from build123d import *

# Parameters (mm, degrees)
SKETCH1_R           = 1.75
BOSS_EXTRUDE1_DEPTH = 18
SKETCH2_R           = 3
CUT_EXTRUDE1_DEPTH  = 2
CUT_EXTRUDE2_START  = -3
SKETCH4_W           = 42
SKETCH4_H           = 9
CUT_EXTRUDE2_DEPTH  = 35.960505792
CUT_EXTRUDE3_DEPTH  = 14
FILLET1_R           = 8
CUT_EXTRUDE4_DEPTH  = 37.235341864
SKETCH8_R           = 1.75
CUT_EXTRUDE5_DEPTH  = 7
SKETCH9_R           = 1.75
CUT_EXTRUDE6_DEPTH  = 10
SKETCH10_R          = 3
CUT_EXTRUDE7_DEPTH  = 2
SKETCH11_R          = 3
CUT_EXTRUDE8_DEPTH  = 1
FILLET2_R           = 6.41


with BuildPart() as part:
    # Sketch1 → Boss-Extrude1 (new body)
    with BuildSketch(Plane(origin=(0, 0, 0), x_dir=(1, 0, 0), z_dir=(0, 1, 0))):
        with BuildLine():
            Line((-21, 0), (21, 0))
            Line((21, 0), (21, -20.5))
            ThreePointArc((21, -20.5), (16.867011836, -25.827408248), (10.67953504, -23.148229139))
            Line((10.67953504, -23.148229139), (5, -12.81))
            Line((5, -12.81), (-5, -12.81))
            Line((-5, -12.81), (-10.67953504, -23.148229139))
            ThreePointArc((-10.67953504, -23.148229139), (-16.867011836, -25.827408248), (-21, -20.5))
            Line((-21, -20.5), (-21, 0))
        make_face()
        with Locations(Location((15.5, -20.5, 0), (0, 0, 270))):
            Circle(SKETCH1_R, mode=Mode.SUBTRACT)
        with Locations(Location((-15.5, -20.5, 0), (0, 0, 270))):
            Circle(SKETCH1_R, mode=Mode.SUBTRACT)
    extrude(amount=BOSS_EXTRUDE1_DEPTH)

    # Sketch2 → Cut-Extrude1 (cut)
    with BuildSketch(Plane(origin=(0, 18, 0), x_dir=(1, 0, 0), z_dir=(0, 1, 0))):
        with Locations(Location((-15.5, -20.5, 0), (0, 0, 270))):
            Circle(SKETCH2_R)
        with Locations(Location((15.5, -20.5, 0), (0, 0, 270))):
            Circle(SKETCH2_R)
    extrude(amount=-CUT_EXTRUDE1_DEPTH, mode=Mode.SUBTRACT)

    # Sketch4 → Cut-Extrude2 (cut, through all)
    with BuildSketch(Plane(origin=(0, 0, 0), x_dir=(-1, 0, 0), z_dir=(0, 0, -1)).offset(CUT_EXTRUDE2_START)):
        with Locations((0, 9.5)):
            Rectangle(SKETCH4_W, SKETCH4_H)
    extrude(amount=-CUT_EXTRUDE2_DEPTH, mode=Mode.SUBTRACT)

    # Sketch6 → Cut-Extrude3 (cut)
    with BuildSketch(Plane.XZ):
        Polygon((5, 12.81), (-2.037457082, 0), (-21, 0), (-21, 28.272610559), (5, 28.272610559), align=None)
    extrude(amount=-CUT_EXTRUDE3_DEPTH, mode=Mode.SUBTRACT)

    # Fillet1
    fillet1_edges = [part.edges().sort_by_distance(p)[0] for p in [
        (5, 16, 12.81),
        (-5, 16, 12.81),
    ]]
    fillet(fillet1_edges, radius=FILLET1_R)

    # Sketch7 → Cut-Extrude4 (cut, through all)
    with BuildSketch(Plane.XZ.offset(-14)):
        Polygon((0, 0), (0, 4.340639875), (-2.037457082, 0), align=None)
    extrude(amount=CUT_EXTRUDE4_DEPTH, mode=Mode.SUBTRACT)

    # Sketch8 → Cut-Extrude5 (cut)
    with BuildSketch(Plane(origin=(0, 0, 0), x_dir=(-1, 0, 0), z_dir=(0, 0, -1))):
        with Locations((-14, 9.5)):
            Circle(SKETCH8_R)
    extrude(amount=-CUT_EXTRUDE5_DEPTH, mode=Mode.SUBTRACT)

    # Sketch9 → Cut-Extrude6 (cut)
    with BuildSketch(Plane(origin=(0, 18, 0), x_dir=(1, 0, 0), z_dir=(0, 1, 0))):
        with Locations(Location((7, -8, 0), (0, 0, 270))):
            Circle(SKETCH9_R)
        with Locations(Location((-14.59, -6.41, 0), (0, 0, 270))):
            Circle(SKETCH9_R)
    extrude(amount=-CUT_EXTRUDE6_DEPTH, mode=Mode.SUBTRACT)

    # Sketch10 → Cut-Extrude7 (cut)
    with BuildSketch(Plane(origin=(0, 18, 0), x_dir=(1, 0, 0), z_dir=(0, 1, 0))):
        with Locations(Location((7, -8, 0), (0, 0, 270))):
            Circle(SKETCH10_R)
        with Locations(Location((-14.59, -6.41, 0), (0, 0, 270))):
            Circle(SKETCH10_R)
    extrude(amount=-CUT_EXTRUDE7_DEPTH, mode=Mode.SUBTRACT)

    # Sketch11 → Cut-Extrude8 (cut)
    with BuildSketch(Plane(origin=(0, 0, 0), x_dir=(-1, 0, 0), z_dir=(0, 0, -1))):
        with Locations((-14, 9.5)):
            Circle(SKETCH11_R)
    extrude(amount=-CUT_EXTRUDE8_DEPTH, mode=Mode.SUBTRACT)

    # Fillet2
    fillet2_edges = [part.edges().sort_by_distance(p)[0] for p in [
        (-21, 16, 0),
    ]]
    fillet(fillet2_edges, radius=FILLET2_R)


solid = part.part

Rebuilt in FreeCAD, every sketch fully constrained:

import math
import FreeCAD as App
import Part
import Sketcher
Q = App.Units.Quantity


def edges_at(feature, points):
    """Names of the edges that pass closest to the given points."""
    edges = feature.Shape.Edges
    near = lambda p: min(range(len(edges)), key=lambda i: edges[i].distToShape(Part.Vertex(*p))[0])
    return sorted({f"Edge{near(p) + 1}" for p in points})


def add_polygon(sketch, points):
    """Adds a closed chain of lines whose ends are joined by coincident constraints."""
    first, n = sketch.GeometryCount, len(points)
    for a, b in zip(points, points[1:] + points[:1]):
        sketch.addGeometry(Part.LineSegment(App.Vector(*a, 0), App.Vector(*b, 0)), False)
    for i in range(n):
        sketch.addConstraint(Sketcher.Constraint("Coincident", first + i, 2, first + (i + 1) % n, 1))

doc = App.newDocument("Part")
params = doc.addObject("Spreadsheet::Sheet", "Params")
for row, (alias, value) in enumerate([
    ("sketch1_diameter", "3.5 mm"),
    ("sketch1_radius", "5.5 mm"),
    ("sketch1_width", "42 mm"),
    ("sketch1_width2", "10 mm"),
    ("sketch1_height", "20.5 mm"),
    ("pad1_length", "18 mm"),
    ("sketch2_diameter", "6 mm"),
    ("pocket1_length", "2 mm"),
    ("sketch3_width", "42 mm"),
    ("sketch3_height", "9 mm"),
    ("sketch4_width", "26 mm"),
    ("pocket3_length", "14 mm"),
    ("fillet_radius", "8 mm"),
    ("sketch6_diameter", "3.5 mm"),
    ("pocket5_length", "7 mm"),
    ("sketch7_diameter", "3.5 mm"),
    ("pocket6_length", "10 mm"),
    ("sketch8_diameter", "6 mm"),
    ("pocket7_length", "2 mm"),
    ("sketch9_diameter", "6 mm"),
    ("pocket8_length", "1 mm"),
    ("fillet2_radius", "6.41 mm"),
], start=1):
    params.set(f"A{row}", alias)
    params.set(f"B{row}", "=" + value)
    params.setAlias(f"B{row}", alias)

body = doc.addObject("PartDesign::Body", "Body")

sketch1 = doc.addObject("Sketcher::SketchObject", "Sketch")
body.addObject(sketch1)
sketch1.AttachmentSupport = (doc.XZ_Plane, [""])
sketch1.MapMode = "FlatFace"
sketch1.addGeometry(Part.LineSegment(App.Vector(21, 0, 0), App.Vector(-21, 0, 0)), False)
sketch1.addGeometry(Part.LineSegment(App.Vector(-21, 0, 0), App.Vector(-21, 20.5, 0)), False)
sketch1.addGeometry(Part.ArcOfCircle(Part.Circle(App.Vector(-15.5, 20.5, 0), App.Vector(0, 0, 1), 5.5), math.radians(29), math.radians(180)), False)
sketch1.addGeometry(Part.LineSegment(App.Vector(-10.7, 23.1, 0), App.Vector(-5, 12.8, 0)), False)
sketch1.addGeometry(Part.LineSegment(App.Vector(-5, 12.8, 0), App.Vector(5, 12.8, 0)), False)
sketch1.addGeometry(Part.LineSegment(App.Vector(5, 12.8, 0), App.Vector(10.7, 23.1, 0)), False)
sketch1.addGeometry(Part.ArcOfCircle(Part.Circle(App.Vector(15.5, 20.5, 0), App.Vector(0, 0, 1), 5.5), math.radians(0), math.radians(151)), False)
sketch1.addGeometry(Part.LineSegment(App.Vector(21, 20.5, 0), App.Vector(21, 0, 0)), False)
sketch1.addGeometry(Part.Circle(App.Vector(15.5, 20.5, 0), App.Vector(0, 0, 1), 1.8), False)
sketch1.addGeometry(Part.Circle(App.Vector(-15.5, 20.5, 0), App.Vector(0, 0, 1), 1.8), False)
sketch1.addConstraint(Sketcher.Constraint("Coincident", 0, 2, 1, 1))
sketch1.addConstraint(Sketcher.Constraint("Tangent", 1, 2, 2, 2))
sketch1.addConstraint(Sketcher.Constraint("Tangent", 2, 1, 3, 1))
sketch1.addConstraint(Sketcher.Constraint("Coincident", 3, 2, 4, 1))
sketch1.addConstraint(Sketcher.Constraint("Coincident", 4, 2, 5, 1))
sketch1.addConstraint(Sketcher.Constraint("Tangent", 5, 2, 6, 2))
sketch1.addConstraint(Sketcher.Constraint("Tangent", 6, 1, 7, 1))
sketch1.addConstraint(Sketcher.Constraint("Coincident", 7, 2, 0, 1))
sketch1.addConstraint(Sketcher.Constraint("Horizontal", 0))
sketch1.addConstraint(Sketcher.Constraint("Vertical", 1))
sketch1.addConstraint(Sketcher.Constraint("Horizontal", 4))
sketch1.addConstraint(Sketcher.Constraint("Vertical", 7))
sketch1.addConstraint(Sketcher.Constraint("Coincident", 8, 3, 6, 3))
sketch1.addConstraint(Sketcher.Constraint("Coincident", 9, 3, 2, 3))
sketch1.addConstraint(Sketcher.Constraint("Equal", 2, 6))
sketch1.addConstraint(Sketcher.Constraint("Equal", 8, 9))
sketch1.addConstraint(Sketcher.Constraint("Symmetric", 0, 2, 7, 2, -1, 1))
sketch1.addConstraint(Sketcher.Constraint("Symmetric", 2, 1, 5, 2, -2))
sketch1.addConstraint(Sketcher.Constraint("Diameter", 8, Q("3.5 mm")))
sketch1.addConstraint(Sketcher.Constraint("Radius", 2, Q("5.5 mm")))
sketch1.addConstraint(Sketcher.Constraint("DistanceX", 0, 2, 0, 1, Q("42 mm")))
sketch1.addConstraint(Sketcher.Constraint("DistanceX", 4, 1, 4, 2, Q("10 mm")))
sketch1.addConstraint(Sketcher.Constraint("DistanceY", 1, 1, 1, 2, Q("20.5 mm")))
sketch1.addConstraint(Sketcher.Constraint("DistanceY", -1, 1, 3, 2, Q("12.81 mm")))
sketch1.setExpression("Constraints[18]", "Params.sketch1_diameter")
sketch1.setExpression("Constraints[19]", "Params.sketch1_radius")
sketch1.setExpression("Constraints[20]", "Params.sketch1_width")
sketch1.setExpression("Constraints[21]", "Params.sketch1_width2")
sketch1.setExpression("Constraints[22]", "Params.sketch1_height")
pad1 = doc.addObject("PartDesign::Pad", "Pad")
body.addObject(pad1)
pad1.Profile = sketch1
pad1.setExpression("Length", "Params.pad1_length")
pad1.Reversed = True

sketch2 = doc.addObject("Sketcher::SketchObject", "Sketch001")
body.addObject(sketch2)
sketch2.AttachmentSupport = (doc.XZ_Plane, [""])
sketch2.MapMode = "FlatFace"
sketch2.AttachmentOffset = App.Placement(App.Vector(0, 0, -18), App.Rotation())
sketch2.addGeometry(Part.Circle(App.Vector(-15.5, 20.5, 0), App.Vector(0, 0, 1), 3), False)
sketch2.addGeometry(Part.Circle(App.Vector(15.5, 20.5, 0), App.Vector(0, 0, 1), 3), False)
sketch2.addConstraint(Sketcher.Constraint("Equal", 0, 1))
sketch2.addConstraint(Sketcher.Constraint("Symmetric", 0, 3, 1, 3, -2))
sketch2.addConstraint(Sketcher.Constraint("Diameter", 0, Q("6 mm")))
sketch2.addConstraint(Sketcher.Constraint("DistanceX", 0, 3, 1, 3, Q("31 mm")))
sketch2.addConstraint(Sketcher.Constraint("DistanceY", -1, 1, 0, 3, Q("20.5 mm")))
sketch2.setExpression("Constraints[2]", "Params.sketch2_diameter")
pocket1 = doc.addObject("PartDesign::Pocket", "Pocket")
body.addObject(pocket1)
pocket1.Profile = sketch2
pocket1.setExpression("Length", "Params.pocket1_length")
pocket1.Reversed = True

sketch3 = doc.addObject("Sketcher::SketchObject", "Sketch002")
body.addObject(sketch3)
sketch3.AttachmentSupport = (doc.XY_Plane, [""])
sketch3.MapMode = "FlatFace"
sketch3.AttachmentOffset = App.Placement(App.Vector(0, 0, 3), App.Rotation())
add_polygon(sketch3, [(21, 14), (21, 5), (-21, 5), (-21, 14)])
sketch3.addConstraint(Sketcher.Constraint("Vertical", 0))
sketch3.addConstraint(Sketcher.Constraint("Horizontal", 1))
sketch3.addConstraint(Sketcher.Constraint("Vertical", 2))
sketch3.addConstraint(Sketcher.Constraint("Horizontal", 3))
sketch3.addConstraint(Sketcher.Constraint("DistanceX", 1, 2, 1, 1, Q("42 mm")))
sketch3.addConstraint(Sketcher.Constraint("DistanceY", 0, 2, 0, 1, Q("9 mm")))
sketch3.addConstraint(Sketcher.Constraint("DistanceX", -1, 1, 0, 2, Q("21 mm")))
sketch3.addConstraint(Sketcher.Constraint("DistanceY", -1, 1, 0, 2, Q("5 mm")))
sketch3.setExpression("Constraints[8]", "Params.sketch3_width")
sketch3.setExpression("Constraints[9]", "Params.sketch3_height")
pocket2 = doc.addObject("PartDesign::Pocket", "Pocket001")
body.addObject(pocket2)
pocket2.Profile = sketch3
pocket2.Type = "ThroughAll"
pocket2.Reversed = True

sketch4 = doc.addObject("Sketcher::SketchObject", "Sketch003")
body.addObject(sketch4)
sketch4.AttachmentSupport = (doc.XZ_Plane, [""])
sketch4.MapMode = "FlatFace"
add_polygon(sketch4, [(-2, 0), (5, 13), (5, 28), (-21, 28), (-21, 0)])
sketch4.addConstraint(Sketcher.Constraint("Vertical", 1))
sketch4.addConstraint(Sketcher.Constraint("Horizontal", 2))
sketch4.addConstraint(Sketcher.Constraint("Vertical", 3))
sketch4.addConstraint(Sketcher.Constraint("Horizontal", 4))
sketch4.addConstraint(Sketcher.Constraint("PointOnObject", 3, 2, -1))
sketch4.addConstraint(Sketcher.Constraint("DistanceX", 2, 2, 2, 1, Q("26 mm")))
sketch4.addConstraint(Sketcher.Constraint("DistanceX", -1, 1, 0, 2, Q("5 mm")))
sketch4.addConstraint(Sketcher.Constraint("DistanceY", -1, 1, 0, 2, Q("12.81 mm")))
sketch4.addConstraint(Sketcher.Constraint("DistanceY", 1, 1, 1, 2, Q("15.462611 mm")))
sketch4.addConstraint(Sketcher.Constraint("Distance", 0, Q("14.61581 mm")))
sketch4.setExpression("Constraints[10]", "Params.sketch4_width")
pocket3 = doc.addObject("PartDesign::Pocket", "Pocket002")
body.addObject(pocket3)
pocket3.Profile = sketch4
pocket3.setExpression("Length", "Params.pocket3_length")
doc.recompute()

fillet = doc.addObject("PartDesign::Fillet", "Fillet")
body.addObject(fillet)
fillet.Base = (pocket3, edges_at(pocket3, [(5, 16, 12.81), (-5, 16, 12.81)]))
fillet.setExpression("Radius", "Params.fillet_radius")

sketch5 = doc.addObject("Sketcher::SketchObject", "Sketch004")
body.addObject(sketch5)
sketch5.AttachmentSupport = (doc.XZ_Plane, [""])
sketch5.MapMode = "FlatFace"
sketch5.AttachmentOffset = App.Placement(App.Vector(0, 0, -14), App.Rotation())
add_polygon(sketch5, [(0, 0), (0, 4.3), (-2, 0)])
sketch5.addConstraint(Sketcher.Constraint("Vertical", 0))
sketch5.addConstraint(Sketcher.Constraint("Horizontal", 2))
sketch5.addConstraint(Sketcher.Constraint("Coincident", 2, 2, -1, 1))
sketch5.addConstraint(Sketcher.Constraint("DistanceY", 0, 1, 0, 2, Q("4.34064 mm")))
sketch5.addConstraint(Sketcher.Constraint("DistanceX", 2, 1, 2, 2, Q("2.037457 mm")))
pocket4 = doc.addObject("PartDesign::Pocket", "Pocket003")
body.addObject(pocket4)
pocket4.Profile = sketch5
pocket4.Type = "ThroughAll"
pocket4.Reversed = True

sketch6 = doc.addObject("Sketcher::SketchObject", "Sketch005")
body.addObject(sketch6)
sketch6.AttachmentSupport = (doc.XY_Plane, [""])
sketch6.MapMode = "FlatFace"
sketch6.addGeometry(Part.Circle(App.Vector(14, 9.5, 0), App.Vector(0, 0, 1), 1.8), False)
sketch6.addConstraint(Sketcher.Constraint("Diameter", 0, Q("3.5 mm")))
sketch6.addConstraint(Sketcher.Constraint("DistanceX", -1, 1, 0, 3, Q("14 mm")))
sketch6.addConstraint(Sketcher.Constraint("DistanceY", -1, 1, 0, 3, Q("9.5 mm")))
sketch6.setExpression("Constraints[0]", "Params.sketch6_diameter")
pocket5 = doc.addObject("PartDesign::Pocket", "Pocket004")
body.addObject(pocket5)
pocket5.Profile = sketch6
pocket5.setExpression("Length", "Params.pocket5_length")
pocket5.Reversed = True

sketch7 = doc.addObject("Sketcher::SketchObject", "Sketch006")
body.addObject(sketch7)
sketch7.AttachmentSupport = (doc.XZ_Plane, [""])
sketch7.MapMode = "FlatFace"
sketch7.AttachmentOffset = App.Placement(App.Vector(0, 0, -18), App.Rotation())
sketch7.addGeometry(Part.Circle(App.Vector(7, 8, 0), App.Vector(0, 0, 1), 1.8), False)
sketch7.addGeometry(Part.Circle(App.Vector(-14.6, 6.4, 0), App.Vector(0, 0, 1), 1.8), False)
sketch7.addConstraint(Sketcher.Constraint("Equal", 0, 1))
sketch7.addConstraint(Sketcher.Constraint("Diameter", 0, Q("3.5 mm")))
sketch7.addConstraint(Sketcher.Constraint("DistanceX", -1, 1, 0, 3, Q("7 mm")))
sketch7.addConstraint(Sketcher.Constraint("DistanceY", -1, 1, 0, 3, Q("8 mm")))
sketch7.addConstraint(Sketcher.Constraint("DistanceX", 1, 3, -1, 1, Q("14.59 mm")))
sketch7.addConstraint(Sketcher.Constraint("DistanceY", -1, 1, 1, 3, Q("6.41 mm")))
sketch7.setExpression("Constraints[1]", "Params.sketch7_diameter")
pocket6 = doc.addObject("PartDesign::Pocket", "Pocket005")
body.addObject(pocket6)
pocket6.Profile = sketch7
pocket6.setExpression("Length", "Params.pocket6_length")
pocket6.Reversed = True

sketch8 = doc.addObject("Sketcher::SketchObject", "Sketch007")
body.addObject(sketch8)
sketch8.AttachmentSupport = (doc.XZ_Plane, [""])
sketch8.MapMode = "FlatFace"
sketch8.AttachmentOffset = App.Placement(App.Vector(0, 0, -18), App.Rotation())
sketch8.addGeometry(Part.Circle(App.Vector(7, 8, 0), App.Vector(0, 0, 1), 3), False)
sketch8.addGeometry(Part.Circle(App.Vector(-14.6, 6.4, 0), App.Vector(0, 0, 1), 3), False)
sketch8.addConstraint(Sketcher.Constraint("Equal", 0, 1))
sketch8.addConstraint(Sketcher.Constraint("Diameter", 0, Q("6 mm")))
sketch8.addConstraint(Sketcher.Constraint("DistanceX", -1, 1, 0, 3, Q("7 mm")))
sketch8.addConstraint(Sketcher.Constraint("DistanceY", -1, 1, 0, 3, Q("8 mm")))
sketch8.addConstraint(Sketcher.Constraint("DistanceX", 1, 3, -1, 1, Q("14.59 mm")))
sketch8.addConstraint(Sketcher.Constraint("DistanceY", -1, 1, 1, 3, Q("6.41 mm")))
sketch8.setExpression("Constraints[1]", "Params.sketch8_diameter")
pocket7 = doc.addObject("PartDesign::Pocket", "Pocket006")
body.addObject(pocket7)
pocket7.Profile = sketch8
pocket7.setExpression("Length", "Params.pocket7_length")
pocket7.Reversed = True

sketch9 = doc.addObject("Sketcher::SketchObject", "Sketch008")
body.addObject(sketch9)
sketch9.AttachmentSupport = (doc.XY_Plane, [""])
sketch9.MapMode = "FlatFace"
sketch9.addGeometry(Part.Circle(App.Vector(14, 9.5, 0), App.Vector(0, 0, 1), 3), False)
sketch9.addConstraint(Sketcher.Constraint("Diameter", 0, Q("6 mm")))
sketch9.addConstraint(Sketcher.Constraint("DistanceX", -1, 1, 0, 3, Q("14 mm")))
sketch9.addConstraint(Sketcher.Constraint("DistanceY", -1, 1, 0, 3, Q("9.5 mm")))
sketch9.setExpression("Constraints[0]", "Params.sketch9_diameter")
pocket8 = doc.addObject("PartDesign::Pocket", "Pocket007")
body.addObject(pocket8)
pocket8.Profile = sketch9
pocket8.setExpression("Length", "Params.pocket8_length")
pocket8.Reversed = True
doc.recompute()

fillet2 = doc.addObject("PartDesign::Fillet", "Fillet001")
body.addObject(fillet2)
fillet2.Base = (pocket8, edges_at(pocket8, [(-21, 16, 0)]))
fillet2.setExpression("Radius", "Params.fillet2_radius")

doc.recompute()
